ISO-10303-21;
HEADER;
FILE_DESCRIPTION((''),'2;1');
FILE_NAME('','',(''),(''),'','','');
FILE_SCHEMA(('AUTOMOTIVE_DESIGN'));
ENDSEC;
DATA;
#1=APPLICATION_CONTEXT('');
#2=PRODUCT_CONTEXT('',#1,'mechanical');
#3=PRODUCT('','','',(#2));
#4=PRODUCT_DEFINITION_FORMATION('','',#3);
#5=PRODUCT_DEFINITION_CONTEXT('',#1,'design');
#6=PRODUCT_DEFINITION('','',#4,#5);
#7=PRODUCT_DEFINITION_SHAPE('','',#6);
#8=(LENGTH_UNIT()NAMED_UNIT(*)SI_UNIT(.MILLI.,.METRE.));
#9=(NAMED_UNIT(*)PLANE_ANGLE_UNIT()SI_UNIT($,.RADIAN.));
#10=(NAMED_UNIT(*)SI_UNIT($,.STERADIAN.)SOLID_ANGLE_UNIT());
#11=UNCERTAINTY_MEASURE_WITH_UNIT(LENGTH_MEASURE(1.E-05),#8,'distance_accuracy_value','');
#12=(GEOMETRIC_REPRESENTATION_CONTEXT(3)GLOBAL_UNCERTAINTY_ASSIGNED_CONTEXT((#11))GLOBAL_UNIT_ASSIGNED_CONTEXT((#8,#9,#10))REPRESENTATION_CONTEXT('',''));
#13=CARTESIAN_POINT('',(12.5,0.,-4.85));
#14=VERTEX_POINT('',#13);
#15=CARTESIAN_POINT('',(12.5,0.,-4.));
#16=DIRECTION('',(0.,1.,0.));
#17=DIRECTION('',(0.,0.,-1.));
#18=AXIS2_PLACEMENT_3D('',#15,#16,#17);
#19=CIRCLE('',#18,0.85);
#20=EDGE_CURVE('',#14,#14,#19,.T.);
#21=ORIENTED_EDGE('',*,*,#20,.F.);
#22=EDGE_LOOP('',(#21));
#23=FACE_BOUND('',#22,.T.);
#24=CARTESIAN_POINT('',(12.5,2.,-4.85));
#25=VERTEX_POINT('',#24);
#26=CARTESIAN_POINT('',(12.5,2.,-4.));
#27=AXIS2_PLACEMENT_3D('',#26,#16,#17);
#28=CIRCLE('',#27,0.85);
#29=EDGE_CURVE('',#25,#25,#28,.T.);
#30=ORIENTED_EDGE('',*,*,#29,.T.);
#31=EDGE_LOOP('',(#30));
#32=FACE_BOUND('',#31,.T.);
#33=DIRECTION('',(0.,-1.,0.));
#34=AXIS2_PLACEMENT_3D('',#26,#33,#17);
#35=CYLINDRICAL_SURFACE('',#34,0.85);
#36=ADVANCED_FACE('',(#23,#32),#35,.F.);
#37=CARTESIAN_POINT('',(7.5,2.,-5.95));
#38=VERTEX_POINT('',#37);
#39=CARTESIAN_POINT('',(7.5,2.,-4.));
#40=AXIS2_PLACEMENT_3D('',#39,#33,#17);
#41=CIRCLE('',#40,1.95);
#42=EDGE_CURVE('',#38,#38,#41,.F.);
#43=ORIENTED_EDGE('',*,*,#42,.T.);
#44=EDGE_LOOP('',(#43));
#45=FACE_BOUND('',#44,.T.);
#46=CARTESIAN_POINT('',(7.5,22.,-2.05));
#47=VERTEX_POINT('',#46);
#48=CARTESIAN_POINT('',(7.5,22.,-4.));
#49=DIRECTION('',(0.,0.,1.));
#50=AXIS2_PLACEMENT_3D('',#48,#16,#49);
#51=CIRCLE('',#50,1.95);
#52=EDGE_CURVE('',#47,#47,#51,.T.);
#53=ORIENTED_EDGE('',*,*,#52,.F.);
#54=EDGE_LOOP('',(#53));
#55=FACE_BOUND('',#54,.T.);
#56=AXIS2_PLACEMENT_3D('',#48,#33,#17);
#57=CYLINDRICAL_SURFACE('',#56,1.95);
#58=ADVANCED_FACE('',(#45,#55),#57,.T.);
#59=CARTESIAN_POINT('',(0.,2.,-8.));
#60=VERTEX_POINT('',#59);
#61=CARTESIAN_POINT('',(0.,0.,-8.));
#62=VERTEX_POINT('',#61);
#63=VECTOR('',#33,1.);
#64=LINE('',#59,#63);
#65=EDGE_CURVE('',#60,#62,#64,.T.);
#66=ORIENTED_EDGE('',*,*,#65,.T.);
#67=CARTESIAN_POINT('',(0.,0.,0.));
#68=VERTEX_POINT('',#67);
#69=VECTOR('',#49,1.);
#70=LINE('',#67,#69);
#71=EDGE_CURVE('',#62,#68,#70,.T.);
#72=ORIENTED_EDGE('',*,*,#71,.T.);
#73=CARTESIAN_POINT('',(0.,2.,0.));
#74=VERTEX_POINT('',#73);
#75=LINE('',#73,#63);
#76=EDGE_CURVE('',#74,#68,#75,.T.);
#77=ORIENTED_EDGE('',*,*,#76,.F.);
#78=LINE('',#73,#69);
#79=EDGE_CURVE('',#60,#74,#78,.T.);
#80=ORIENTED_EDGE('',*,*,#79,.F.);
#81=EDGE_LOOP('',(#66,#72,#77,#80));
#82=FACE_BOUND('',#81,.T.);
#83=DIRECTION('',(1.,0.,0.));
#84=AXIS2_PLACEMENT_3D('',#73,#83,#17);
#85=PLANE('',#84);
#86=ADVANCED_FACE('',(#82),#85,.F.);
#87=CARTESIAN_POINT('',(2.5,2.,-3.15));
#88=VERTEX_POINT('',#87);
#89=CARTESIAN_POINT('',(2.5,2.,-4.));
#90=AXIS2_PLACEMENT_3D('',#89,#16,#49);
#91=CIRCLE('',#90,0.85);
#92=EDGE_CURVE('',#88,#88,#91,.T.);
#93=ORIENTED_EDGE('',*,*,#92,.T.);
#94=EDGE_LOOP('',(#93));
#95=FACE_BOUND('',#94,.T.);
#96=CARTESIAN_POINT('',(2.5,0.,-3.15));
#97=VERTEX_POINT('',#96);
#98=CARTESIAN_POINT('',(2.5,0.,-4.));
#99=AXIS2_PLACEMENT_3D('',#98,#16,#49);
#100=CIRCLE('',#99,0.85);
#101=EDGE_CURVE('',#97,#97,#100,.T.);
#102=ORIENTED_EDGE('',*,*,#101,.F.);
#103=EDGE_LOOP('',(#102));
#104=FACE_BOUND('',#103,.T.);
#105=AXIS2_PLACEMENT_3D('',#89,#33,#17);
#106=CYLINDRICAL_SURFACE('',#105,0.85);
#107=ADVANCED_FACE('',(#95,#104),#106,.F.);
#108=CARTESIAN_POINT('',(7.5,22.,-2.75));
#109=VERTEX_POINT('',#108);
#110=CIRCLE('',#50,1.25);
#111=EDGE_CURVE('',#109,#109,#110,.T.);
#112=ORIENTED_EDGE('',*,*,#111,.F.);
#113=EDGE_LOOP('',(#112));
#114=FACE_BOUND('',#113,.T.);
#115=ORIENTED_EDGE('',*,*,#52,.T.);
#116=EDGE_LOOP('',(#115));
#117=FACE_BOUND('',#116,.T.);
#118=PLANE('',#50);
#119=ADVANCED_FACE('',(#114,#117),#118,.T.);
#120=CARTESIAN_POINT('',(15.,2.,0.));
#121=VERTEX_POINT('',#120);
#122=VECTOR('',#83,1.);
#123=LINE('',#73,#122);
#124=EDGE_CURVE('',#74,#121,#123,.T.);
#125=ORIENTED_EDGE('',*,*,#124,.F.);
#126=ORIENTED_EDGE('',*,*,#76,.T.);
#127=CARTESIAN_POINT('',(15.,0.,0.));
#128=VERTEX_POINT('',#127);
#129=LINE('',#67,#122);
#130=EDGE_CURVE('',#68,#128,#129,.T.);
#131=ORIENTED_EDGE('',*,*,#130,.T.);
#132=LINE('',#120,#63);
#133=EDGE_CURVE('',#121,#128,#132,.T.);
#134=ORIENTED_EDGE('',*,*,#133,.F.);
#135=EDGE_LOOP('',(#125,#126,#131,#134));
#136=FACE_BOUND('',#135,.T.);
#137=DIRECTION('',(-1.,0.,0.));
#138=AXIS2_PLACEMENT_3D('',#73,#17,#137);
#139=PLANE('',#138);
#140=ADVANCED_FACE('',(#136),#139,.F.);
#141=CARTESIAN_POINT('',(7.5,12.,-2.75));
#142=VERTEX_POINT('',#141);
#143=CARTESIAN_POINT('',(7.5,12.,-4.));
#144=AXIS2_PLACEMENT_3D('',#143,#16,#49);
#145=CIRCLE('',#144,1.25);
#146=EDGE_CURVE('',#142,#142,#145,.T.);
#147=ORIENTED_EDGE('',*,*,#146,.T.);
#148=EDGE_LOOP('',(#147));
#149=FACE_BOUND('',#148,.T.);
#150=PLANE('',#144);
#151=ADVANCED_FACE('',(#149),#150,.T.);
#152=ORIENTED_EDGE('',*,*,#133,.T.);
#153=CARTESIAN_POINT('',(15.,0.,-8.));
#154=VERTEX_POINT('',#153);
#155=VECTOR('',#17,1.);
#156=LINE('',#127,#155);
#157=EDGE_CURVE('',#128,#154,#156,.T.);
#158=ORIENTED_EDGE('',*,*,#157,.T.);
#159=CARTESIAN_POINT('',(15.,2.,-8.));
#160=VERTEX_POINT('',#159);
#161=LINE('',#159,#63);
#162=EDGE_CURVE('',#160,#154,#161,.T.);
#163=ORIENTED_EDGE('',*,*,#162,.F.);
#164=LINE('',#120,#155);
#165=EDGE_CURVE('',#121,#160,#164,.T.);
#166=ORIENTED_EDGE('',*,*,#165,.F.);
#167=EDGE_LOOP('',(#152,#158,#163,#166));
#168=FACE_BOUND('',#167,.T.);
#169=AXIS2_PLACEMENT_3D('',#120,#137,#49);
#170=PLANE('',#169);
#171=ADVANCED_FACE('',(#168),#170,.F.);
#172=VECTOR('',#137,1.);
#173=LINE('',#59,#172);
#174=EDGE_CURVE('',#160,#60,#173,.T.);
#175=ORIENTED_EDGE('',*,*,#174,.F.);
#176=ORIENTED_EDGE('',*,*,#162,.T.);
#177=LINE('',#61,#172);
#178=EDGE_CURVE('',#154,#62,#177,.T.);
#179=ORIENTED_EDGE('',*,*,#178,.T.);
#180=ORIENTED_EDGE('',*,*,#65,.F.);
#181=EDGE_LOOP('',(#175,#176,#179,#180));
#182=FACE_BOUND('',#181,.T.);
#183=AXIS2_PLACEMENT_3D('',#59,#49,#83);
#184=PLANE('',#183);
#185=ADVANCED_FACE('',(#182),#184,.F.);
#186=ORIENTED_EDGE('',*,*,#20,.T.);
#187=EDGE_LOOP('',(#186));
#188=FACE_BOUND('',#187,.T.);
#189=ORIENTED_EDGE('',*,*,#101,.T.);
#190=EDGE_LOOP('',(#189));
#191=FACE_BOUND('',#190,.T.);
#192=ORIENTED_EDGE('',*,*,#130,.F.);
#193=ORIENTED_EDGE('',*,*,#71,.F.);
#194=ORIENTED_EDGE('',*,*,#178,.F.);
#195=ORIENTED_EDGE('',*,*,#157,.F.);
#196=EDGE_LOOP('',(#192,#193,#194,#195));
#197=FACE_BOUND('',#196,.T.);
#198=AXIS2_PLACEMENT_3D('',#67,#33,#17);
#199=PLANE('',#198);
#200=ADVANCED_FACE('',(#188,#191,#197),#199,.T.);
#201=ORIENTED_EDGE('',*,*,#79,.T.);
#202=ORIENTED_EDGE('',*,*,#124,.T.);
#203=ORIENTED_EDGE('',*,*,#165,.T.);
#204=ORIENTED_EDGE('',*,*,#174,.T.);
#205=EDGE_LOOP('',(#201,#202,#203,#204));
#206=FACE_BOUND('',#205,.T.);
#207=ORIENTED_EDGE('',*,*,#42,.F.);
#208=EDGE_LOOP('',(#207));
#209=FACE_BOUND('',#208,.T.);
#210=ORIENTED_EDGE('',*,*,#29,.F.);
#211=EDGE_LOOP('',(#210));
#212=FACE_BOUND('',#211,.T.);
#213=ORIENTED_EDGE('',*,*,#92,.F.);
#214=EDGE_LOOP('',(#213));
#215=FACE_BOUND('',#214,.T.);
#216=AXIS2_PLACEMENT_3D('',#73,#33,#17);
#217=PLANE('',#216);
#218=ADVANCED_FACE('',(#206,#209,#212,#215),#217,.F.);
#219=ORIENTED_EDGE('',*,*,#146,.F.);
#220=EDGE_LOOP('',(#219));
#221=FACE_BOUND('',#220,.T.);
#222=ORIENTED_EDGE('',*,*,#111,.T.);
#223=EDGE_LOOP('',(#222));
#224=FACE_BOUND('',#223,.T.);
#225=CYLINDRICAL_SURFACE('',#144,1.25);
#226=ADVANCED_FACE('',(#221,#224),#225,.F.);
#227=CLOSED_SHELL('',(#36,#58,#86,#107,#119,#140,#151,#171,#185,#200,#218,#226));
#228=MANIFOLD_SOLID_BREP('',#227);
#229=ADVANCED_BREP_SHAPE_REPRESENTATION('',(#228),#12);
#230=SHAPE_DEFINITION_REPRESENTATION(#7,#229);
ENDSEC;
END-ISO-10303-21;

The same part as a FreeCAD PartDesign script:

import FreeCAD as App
import Part
import Sketcher
from FreeCAD import Vector

doc = App.newDocument("Part")
body = doc.addObject("PartDesign::Body", "Body")

# Sketch on XZ plane
sketch1 = body.newObject("Sketcher::SketchObject", "Sketch")
sketch1.AttachmentSupport = (doc.getObject("XZ_Plane"), [""])
sketch1.MapMode = "FlatFace"
sketch1.addGeometry(Part.LineSegment(Vector(0, -8, 0), Vector(0, 0, 0)), False)
sketch1.addGeometry(Part.LineSegment(Vector(0, 0, 0), Vector(15, 0, 0)), False)
sketch1.addGeometry(Part.LineSegment(Vector(15, 0, 0), Vector(15, -8, 0)), False)
sketch1.addGeometry(Part.LineSegment(Vector(15, -8, 0), Vector(0, -8, 0)), False)
sketch1.addGeometry(Part.Circle(Vector(2.5, -4, 0), Vector(0, 0, 1), 0.8), False)
sketch1.addGeometry(Part.Circle(Vector(12.5, -4, 0), Vector(0, 0, 1), 0.8), False)
sketch1.addConstraint(Sketcher.Constraint("Coincident", 0, 2, 1, 1))
sketch1.addConstraint(Sketcher.Constraint("Coincident", 1, 2, 2, 1))
sketch1.addConstraint(Sketcher.Constraint("Coincident", 2, 2, 3, 1))
sketch1.addConstraint(Sketcher.Constraint("Coincident", 3, 2, 0, 1))
sketch1.addConstraint(Sketcher.Constraint("Vertical", 0))
sketch1.addConstraint(Sketcher.Constraint("Horizontal", 1))
sketch1.addConstraint(Sketcher.Constraint("Vertical", 2))
sketch1.addConstraint(Sketcher.Constraint("Horizontal", 3))
sketch1.addConstraint(Sketcher.Constraint("Coincident", 0, 2, -1, 1))
sketch1.addConstraint(Sketcher.Constraint("Equal", 4, 5))
sketch1.addConstraint(Sketcher.Constraint("Horizontal", 4, 3, 5, 3))
sketch1.addConstraint(Sketcher.Constraint("Diameter", 4, 1.7))
sketch1.addConstraint(Sketcher.Constraint("DistanceX", 1, 1, 1, 2, 15.0))
sketch1.addConstraint(Sketcher.Constraint("DistanceY", 0, 1, 0, 2, 8.0))
sketch1.addConstraint(Sketcher.Constraint("DistanceY", 4, 3, -1, 1, 4.0))
sketch1.addConstraint(Sketcher.Constraint("DistanceX", 4, 3, 5, 3, 10.0))
sketch1.addConstraint(Sketcher.Constraint("DistanceX", -1, 1, 4, 3, 2.5))
pad1 = body.newObject("PartDesign::Pad", "Pad")
pad1.Profile = sketch1
pad1.Length = 2
pad1.Reversed = True

# Sketch on XZ plane
sketch2 = body.newObject("Sketcher::SketchObject", "Sketch001")
sketch2.AttachmentSupport = (doc.getObject("XZ_Plane"), [""])
sketch2.MapMode = "FlatFace"
sketch2.AttachmentOffset = App.Placement(Vector(0, 0, -2), App.Rotation())
sketch2.addGeometry(Part.Circle(Vector(7.5, -4, 0), Vector(0, 0, 1), 1.9), False)
sketch2.addConstraint(Sketcher.Constraint("Diameter", 0, 3.9))
sketch2.addConstraint(Sketcher.Constraint("DistanceY", 0, 3, -1, 1, 4.0))
sketch2.addConstraint(Sketcher.Constraint("DistanceX", -1, 1, 0, 3, 7.5))
pad2 = body.newObject("PartDesign::Pad", "Pad001")
pad2.Profile = sketch2
pad2.Length = 20
pad2.Reversed = True

# Sketch on XZ plane
sketch3 = body.newObject("Sketcher::SketchObject", "Sketch002")
sketch3.AttachmentSupport = (doc.getObject("XZ_Plane"), [""])
sketch3.MapMode = "FlatFace"
sketch3.AttachmentOffset = App.Placement(Vector(0, 0, -22), App.Rotation())
sketch3.addGeometry(Part.Circle(Vector(7.5, -4, 0), Vector(0, 0, 1), 1.2), False)
sketch3.addConstraint(Sketcher.Constraint("Diameter", 0, 2.5))
sketch3.addConstraint(Sketcher.Constraint("DistanceY", 0, 3, -1, 1, 4.0))
sketch3.addConstraint(Sketcher.Constraint("DistanceX", -1, 1, 0, 3, 7.5))
pocket1 = body.newObject("PartDesign::Pocket", "Pocket")
pocket1.Profile = sketch3
pocket1.Length = 10
pocket1.Reversed = True

doc.recompute()
